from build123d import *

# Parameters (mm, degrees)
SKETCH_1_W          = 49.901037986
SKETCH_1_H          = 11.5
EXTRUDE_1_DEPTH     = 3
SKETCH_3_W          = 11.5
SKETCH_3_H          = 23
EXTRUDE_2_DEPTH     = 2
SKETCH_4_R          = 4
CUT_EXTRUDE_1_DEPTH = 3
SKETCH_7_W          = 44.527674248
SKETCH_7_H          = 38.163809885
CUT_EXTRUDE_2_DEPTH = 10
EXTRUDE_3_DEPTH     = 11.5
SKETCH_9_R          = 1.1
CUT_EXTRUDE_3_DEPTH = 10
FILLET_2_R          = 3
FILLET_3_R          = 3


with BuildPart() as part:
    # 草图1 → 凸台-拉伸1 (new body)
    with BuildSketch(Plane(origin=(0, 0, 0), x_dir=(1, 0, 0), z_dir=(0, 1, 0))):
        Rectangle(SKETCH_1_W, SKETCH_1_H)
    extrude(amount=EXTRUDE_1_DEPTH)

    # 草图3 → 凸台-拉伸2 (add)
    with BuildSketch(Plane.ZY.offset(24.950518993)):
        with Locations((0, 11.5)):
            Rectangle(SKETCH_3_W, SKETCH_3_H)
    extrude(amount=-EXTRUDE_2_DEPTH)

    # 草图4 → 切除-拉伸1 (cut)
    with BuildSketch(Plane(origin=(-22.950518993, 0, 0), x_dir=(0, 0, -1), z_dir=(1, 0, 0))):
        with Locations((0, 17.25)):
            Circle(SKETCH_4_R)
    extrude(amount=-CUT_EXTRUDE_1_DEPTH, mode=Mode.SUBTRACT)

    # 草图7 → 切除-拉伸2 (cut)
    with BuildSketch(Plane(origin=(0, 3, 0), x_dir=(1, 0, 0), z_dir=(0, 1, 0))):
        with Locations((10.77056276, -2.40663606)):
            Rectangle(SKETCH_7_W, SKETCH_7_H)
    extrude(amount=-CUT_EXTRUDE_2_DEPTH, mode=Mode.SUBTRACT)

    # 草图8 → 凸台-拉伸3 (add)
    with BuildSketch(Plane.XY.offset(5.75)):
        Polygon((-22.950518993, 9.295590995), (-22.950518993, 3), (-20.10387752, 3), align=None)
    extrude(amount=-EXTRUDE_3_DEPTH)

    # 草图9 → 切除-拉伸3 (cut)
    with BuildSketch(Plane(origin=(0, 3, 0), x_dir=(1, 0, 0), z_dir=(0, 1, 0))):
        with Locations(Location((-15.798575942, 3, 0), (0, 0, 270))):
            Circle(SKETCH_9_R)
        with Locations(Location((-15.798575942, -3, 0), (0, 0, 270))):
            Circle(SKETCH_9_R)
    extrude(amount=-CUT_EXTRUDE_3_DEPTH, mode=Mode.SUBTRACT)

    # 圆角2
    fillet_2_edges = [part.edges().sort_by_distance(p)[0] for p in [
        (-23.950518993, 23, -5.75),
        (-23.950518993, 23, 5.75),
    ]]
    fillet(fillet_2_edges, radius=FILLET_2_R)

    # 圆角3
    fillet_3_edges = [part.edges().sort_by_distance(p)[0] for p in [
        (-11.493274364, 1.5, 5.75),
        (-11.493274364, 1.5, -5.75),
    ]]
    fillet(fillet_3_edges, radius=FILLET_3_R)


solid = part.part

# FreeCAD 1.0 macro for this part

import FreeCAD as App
import Part
import Sketcher
Q = App.Units.Quantity


def edges_at(feature, points):
    """Names of the edges that pass closest to the given points."""
    edges = feature.Shape.Edges
    near = lambda p: min(range(len(edges)), key=lambda i: edges[i].distToShape(Part.Vertex(*p))[0])
    return sorted({f"Edge{near(p) + 1}" for p in points})


def add_polygon(sketch, points):
    """Adds a closed chain of lines whose ends are joined by coincident constraints."""
    first, n = sketch.GeometryCount, len(points)
    for a, b in zip(points, points[1:] + points[:1]):
        sketch.addGeometry(Part.LineSegment(App.Vector(*a, 0), App.Vector(*b, 0)), False)
    for i in range(n):
        sketch.addConstraint(Sketcher.Constraint("Coincident", first + i, 2, first + (i + 1) % n, 1))

doc = App.newDocument("Part")
body = doc.addObject("PartDesign::Body", "Body")

sketch1 = body.newObject("Sketcher::SketchObject", "Sketch")
sketch1.AttachmentSupport = (doc.getObject("XZ_Plane"), [""])
sketch1.MapMode = "FlatFace"
add_polygon(sketch1, [(-24.950519, -5.75), (-24.950519, 5.75), (24.950519, 5.75), (24.950519, -5.75)])
sketch1.addConstraint(Sketcher.Constraint("Vertical", 0))
sketch1.addConstraint(Sketcher.Constraint("Horizontal", 1))
sketch1.addConstraint(Sketcher.Constraint("Vertical", 2))
sketch1.addConstraint(Sketcher.Constraint("Horizontal", 3))
sketch1.addConstraint(Sketcher.Constraint("Symmetric", 0, 2, 2, 2, -1, 1))
sketch1.addConstraint(Sketcher.Constraint("DistanceY", 0, 1, 0, 2, Q("11.5 mm")))
sketch1.addConstraint(Sketcher.Constraint("DistanceX", 1, 1, 1, 2, Q("49.901038 mm")))
pad1 = body.newObject("PartDesign::Pad", "Pad")
pad1.Profile = sketch1
pad1.Length = 3
pad1.Reversed = True

sketch2 = body.newObject("Sketcher::SketchObject", "Sketch001")
sketch2.AttachmentSupport = (doc.getObject("YZ_Plane"), [""])
sketch2.MapMode = "FlatFace"
sketch2.AttachmentOffset = App.Placement(App.Vector(0, 0, -24.950519), App.Rotation())
add_polygon(sketch2, [(23, -5.75), (0, -5.75), (0, 5.75), (23, 5.75)])
sketch2.addConstraint(Sketcher.Constraint("Horizontal", 0))
sketch2.addConstraint(Sketcher.Constraint("Vertical", 1))
sketch2.addConstraint(Sketcher.Constraint("Horizontal", 2))
sketch2.addConstraint(Sketcher.Constraint("Vertical", 3))
sketch2.addConstraint(Sketcher.Constraint("Symmetric", 0, 2, 1, 2, -1, 1))
sketch2.addConstraint(Sketcher.Constraint("DistanceX", 0, 2, 0, 1, Q("23 mm")))
sketch2.addConstraint(Sketcher.Constraint("DistanceY", 1, 1, 1, 2, Q("11.5 mm")))
pad2 = body.newObject("PartDesign::Pad", "Pad001")
pad2.Profile = sketch2
pad2.Length = 2

sketch3 = body.newObject("Sketcher::SketchObject", "Sketch002")
sketch3.AttachmentSupport = (doc.getObject("YZ_Plane"), [""])
sketch3.MapMode = "FlatFace"
sketch3.AttachmentOffset = App.Placement(App.Vector(0, 0, -22.950519), App.Rotation())
sketch3.addGeometry(Part.Circle(App.Vector(17.25, 0, 0), App.Vector(0, 0, 1), 4), False)
sketch3.addConstraint(Sketcher.Constraint("PointOnObject", 0, 3, -1))
sketch3.addConstraint(Sketcher.Constraint("Diameter", 0, Q("8 mm")))
sketch3.addConstraint(Sketcher.Constraint("DistanceX", -1, 1, 0, 3, Q("17.25 mm")))
pocket1 = body.newObject("PartDesign::Pocket", "Pocket")
pocket1.Profile = sketch3
pocket1.Length = 3

sketch4 = body.newObject("Sketcher::SketchObject", "Sketch003")
sketch4.AttachmentSupport = (doc.getObject("XZ_Plane"), [""])
sketch4.MapMode = "FlatFace"
sketch4.AttachmentOffset = App.Placement(App.Vector(0, 0, -3), App.Rotation())
add_polygon(sketch4, [(-11.493274, -16.675269), (-11.493274, 21.488541), (33.0344, 21.488541), (33.0344, -16.675269)])
sketch4.addConstraint(Sketcher.Constraint("Vertical", 0))
sketch4.addConstraint(Sketcher.Constraint("Horizontal", 1))
sketch4.addConstraint(Sketcher.Constraint("Vertical", 2))
sketch4.addConstraint(Sketcher.Constraint("Horizontal", 3))
sketch4.addConstraint(Sketcher.Constraint("DistanceY", 0, 1, 0, 2, Q("38.16381 mm")))
sketch4.addConstraint(Sketcher.Constraint("DistanceX", -1, 1, 1, 2, Q("33.0344 mm")))
sketch4.addConstraint(Sketcher.Constraint("DistanceX", 1, 1, 1, 2, Q("44.527674 mm")))
sketch4.addConstraint(Sketcher.Constraint("DistanceY", -1, 1, 0, 2, Q("21.488541 mm")))
pocket2 = body.newObject("PartDesign::Pocket", "Pocket001")
pocket2.Profile = sketch4
pocket2.Length = 10
pocket2.Reversed = True

sketch5 = body.newObject("Sketcher::SketchObject", "Sketch004")
sketch5.AttachmentSupport = (doc.getObject("XY_Plane"), [""])
sketch5.MapMode = "FlatFace"
sketch5.AttachmentOffset = App.Placement(App.Vector(0, 0, 5.75), App.Rotation())
add_polygon(sketch5, [(-22.950519, 9.295591), (-22.950519, 3), (-20.103878, 3)])
sketch5.addConstraint(Sketcher.Constraint("Vertical", 0))
sketch5.addConstraint(Sketcher.Constraint("Horizontal", 1))
sketch5.addConstraint(Sketcher.Constraint("DistanceY", -1, 1, 0, 2, Q("3 mm")))
sketch5.addConstraint(Sketcher.Constraint("DistanceX", 1, 1, 1, 2, Q("2.846641 mm")))
sketch5.addConstraint(Sketcher.Constraint("DistanceY", 0, 2, 0, 1, Q("6.295591 mm")))
sketch5.addConstraint(Sketcher.Constraint("DistanceX", 0, 2, -1, 1, Q("22.950519 mm")))
pad3 = body.newObject("PartDesign::Pad", "Pad002")
pad3.Profile = sketch5
pad3.Length = 11.5
pad3.Reversed = True

sketch6 = body.newObject("Sketcher::SketchObject", "Sketch005")
sketch6.AttachmentSupport = (doc.getObject("XZ_Plane"), [""])
sketch6.MapMode = "FlatFace"
sketch6.AttachmentOffset = App.Placement(App.Vector(0, 0, -3), App.Rotation())
sketch6.addGeometry(Part.Circle(App.Vector(-15.798576, -3, 0), App.Vector(0, 0, 1), 1.1), False)
sketch6.addGeometry(Part.Circle(App.Vector(-15.798576, 3, 0), App.Vector(0, 0, 1), 1.1), False)
sketch6.addConstraint(Sketcher.Constraint("Equal", 0, 1))
sketch6.addConstraint(Sketcher.Constraint("Symmetric", 0, 3, 1, 3, -1))
sketch6.addConstraint(Sketcher.Constraint("Diameter", 0, Q("2.2 mm")))
sketch6.addConstraint(Sketcher.Constraint("DistanceY", 0, 3, -1, 1, Q("3 mm")))
sketch6.addConstraint(Sketcher.Constraint("DistanceX", 0, 3, -1, 1, Q("15.798576 mm")))
pocket3 = body.newObject("PartDesign::Pocket", "Pocket002")
pocket3.Profile = sketch6
pocket3.Length = 10
pocket3.Reversed = True
doc.recompute()

fillet = body.newObject("PartDesign::Fillet", "Fillet")
fillet.Base = (pocket3, edges_at(pocket3, [(-23.951, 23, -5.75), (-23.951, 23, 5.75)]))
fillet.Radius = 3
doc.recompute()

fillet2 = body.newObject("PartDesign::Fillet", "Fillet001")
fillet2.Base = (fillet, edges_at(fillet, [(-11.493, 1.5, 5.75), (-11.493, 1.5, -5.75)]))
fillet2.Radius = 3

doc.recompute()
